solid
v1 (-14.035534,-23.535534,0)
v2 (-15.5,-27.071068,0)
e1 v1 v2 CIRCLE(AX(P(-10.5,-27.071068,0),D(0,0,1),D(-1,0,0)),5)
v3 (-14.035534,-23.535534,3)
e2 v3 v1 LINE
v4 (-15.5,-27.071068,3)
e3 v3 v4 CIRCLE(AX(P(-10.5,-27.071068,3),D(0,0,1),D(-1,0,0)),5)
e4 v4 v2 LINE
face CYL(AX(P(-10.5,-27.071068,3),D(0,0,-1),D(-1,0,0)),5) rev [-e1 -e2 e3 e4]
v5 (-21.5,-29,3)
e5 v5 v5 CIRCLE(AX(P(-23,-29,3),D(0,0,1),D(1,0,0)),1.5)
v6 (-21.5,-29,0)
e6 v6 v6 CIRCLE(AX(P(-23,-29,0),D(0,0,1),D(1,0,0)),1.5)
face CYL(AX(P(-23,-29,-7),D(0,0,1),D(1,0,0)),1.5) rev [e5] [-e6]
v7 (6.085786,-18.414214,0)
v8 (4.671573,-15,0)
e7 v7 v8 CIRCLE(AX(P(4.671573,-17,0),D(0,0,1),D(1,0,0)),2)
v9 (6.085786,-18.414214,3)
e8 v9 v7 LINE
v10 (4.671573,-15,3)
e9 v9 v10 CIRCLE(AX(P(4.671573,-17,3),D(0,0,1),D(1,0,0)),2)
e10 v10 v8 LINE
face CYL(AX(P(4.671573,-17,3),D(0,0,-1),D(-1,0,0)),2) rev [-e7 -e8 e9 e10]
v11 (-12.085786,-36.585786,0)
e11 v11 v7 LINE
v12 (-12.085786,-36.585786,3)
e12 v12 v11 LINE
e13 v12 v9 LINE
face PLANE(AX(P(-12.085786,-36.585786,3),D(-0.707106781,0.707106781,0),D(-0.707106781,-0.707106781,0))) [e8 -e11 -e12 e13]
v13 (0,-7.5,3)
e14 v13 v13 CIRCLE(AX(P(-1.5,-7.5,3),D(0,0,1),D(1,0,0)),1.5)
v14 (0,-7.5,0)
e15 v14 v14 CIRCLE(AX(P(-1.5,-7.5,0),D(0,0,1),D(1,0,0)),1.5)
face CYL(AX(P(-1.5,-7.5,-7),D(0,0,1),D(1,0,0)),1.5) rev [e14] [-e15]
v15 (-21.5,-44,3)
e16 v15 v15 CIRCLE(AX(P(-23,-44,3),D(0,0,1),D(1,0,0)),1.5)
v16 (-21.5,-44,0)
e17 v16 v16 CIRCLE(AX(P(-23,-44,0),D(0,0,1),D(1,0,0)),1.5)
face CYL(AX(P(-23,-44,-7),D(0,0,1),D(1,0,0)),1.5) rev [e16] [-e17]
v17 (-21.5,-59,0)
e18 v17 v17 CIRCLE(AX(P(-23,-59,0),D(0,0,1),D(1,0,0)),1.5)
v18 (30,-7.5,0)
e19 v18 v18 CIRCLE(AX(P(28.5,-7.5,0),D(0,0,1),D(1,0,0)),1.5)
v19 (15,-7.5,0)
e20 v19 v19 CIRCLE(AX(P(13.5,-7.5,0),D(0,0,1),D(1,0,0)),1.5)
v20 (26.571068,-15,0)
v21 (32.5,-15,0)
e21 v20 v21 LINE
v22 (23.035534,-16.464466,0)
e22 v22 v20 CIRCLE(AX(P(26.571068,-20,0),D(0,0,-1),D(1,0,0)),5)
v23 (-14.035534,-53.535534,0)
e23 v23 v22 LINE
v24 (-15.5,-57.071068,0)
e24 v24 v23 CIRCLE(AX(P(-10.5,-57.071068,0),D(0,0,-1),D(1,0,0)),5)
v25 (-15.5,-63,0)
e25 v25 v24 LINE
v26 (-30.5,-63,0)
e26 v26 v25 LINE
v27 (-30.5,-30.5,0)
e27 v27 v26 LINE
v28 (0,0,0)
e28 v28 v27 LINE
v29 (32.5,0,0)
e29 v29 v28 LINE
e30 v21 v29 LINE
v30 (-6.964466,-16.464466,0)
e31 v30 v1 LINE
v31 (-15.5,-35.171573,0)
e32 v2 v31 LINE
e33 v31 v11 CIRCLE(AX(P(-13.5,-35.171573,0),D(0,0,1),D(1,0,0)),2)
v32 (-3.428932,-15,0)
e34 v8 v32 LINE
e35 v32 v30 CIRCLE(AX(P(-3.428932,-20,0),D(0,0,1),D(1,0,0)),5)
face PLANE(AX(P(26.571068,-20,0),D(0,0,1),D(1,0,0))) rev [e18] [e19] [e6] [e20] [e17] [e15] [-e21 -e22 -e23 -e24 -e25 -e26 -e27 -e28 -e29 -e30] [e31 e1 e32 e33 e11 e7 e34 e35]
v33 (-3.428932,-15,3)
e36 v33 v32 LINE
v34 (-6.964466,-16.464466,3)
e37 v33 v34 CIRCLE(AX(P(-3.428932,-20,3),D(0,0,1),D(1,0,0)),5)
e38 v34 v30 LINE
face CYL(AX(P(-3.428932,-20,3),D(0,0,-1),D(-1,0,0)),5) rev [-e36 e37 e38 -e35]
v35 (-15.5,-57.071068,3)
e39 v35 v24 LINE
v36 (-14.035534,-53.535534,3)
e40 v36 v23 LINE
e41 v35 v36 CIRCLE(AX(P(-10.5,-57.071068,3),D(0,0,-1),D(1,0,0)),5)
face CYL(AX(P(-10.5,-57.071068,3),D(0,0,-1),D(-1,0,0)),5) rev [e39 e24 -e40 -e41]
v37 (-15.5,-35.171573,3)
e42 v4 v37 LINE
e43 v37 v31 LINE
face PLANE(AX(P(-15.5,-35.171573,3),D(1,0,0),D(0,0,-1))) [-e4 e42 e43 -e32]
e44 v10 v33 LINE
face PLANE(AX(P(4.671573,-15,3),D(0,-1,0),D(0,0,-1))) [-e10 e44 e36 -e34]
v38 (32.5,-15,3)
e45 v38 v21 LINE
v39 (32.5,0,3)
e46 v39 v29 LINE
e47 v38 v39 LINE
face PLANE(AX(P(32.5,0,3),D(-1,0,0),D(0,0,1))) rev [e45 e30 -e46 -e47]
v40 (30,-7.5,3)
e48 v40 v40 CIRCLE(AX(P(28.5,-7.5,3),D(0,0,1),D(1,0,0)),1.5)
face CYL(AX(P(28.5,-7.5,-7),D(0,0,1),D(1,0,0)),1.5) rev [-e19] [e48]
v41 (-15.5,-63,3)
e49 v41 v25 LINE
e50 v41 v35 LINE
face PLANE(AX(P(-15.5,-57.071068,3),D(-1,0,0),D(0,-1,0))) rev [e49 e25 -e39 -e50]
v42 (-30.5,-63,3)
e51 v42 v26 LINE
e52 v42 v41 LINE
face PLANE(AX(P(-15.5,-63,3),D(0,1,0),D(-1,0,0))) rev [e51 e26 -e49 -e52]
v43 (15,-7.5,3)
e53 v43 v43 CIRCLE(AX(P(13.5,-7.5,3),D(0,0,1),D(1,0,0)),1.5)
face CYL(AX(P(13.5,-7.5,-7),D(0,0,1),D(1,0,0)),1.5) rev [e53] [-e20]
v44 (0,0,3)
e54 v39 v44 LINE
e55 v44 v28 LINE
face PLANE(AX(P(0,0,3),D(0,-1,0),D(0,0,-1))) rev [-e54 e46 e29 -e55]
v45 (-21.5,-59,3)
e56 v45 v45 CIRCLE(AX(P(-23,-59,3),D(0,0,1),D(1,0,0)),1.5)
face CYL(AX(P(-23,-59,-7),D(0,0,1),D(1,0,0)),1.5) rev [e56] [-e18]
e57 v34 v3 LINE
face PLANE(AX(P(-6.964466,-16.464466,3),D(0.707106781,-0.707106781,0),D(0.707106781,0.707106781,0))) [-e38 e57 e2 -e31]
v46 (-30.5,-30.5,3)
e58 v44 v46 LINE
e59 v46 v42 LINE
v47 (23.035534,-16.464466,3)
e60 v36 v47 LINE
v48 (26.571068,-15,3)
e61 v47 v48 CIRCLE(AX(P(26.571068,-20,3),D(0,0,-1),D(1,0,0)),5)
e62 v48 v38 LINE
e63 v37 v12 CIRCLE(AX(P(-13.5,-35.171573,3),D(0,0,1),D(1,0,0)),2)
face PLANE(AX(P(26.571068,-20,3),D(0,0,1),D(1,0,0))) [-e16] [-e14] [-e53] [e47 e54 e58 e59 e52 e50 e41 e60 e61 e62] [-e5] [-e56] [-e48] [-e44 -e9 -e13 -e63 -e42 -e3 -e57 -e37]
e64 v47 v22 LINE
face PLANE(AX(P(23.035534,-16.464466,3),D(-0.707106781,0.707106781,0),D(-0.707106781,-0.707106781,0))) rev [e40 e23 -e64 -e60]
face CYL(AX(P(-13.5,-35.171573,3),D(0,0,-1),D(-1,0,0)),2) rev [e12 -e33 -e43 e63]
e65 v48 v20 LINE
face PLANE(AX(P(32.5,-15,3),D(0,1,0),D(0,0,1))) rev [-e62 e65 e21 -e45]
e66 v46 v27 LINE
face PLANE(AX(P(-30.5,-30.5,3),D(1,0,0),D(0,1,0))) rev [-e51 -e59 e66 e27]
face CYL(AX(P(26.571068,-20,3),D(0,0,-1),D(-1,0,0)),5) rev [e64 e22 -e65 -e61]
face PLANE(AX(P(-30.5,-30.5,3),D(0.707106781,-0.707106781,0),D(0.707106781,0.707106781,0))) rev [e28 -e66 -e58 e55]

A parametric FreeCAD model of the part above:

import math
import FreeCAD as App
import Part
import Sketcher

doc = App.newDocument("Part")
body = doc.addObject("PartDesign::Body", "Body")

sketch1 = body.newObject("Sketcher::SketchObject", "Sketch")
sketch1.AttachmentSupport = (doc.getObject("XY_Plane"), [""])
sketch1.MapMode = "FlatFace"
sketch1.addGeometry([
    Part.LineSegment(App.Vector(32.5, -15, 0), App.Vector(32.5, 0, 0)),
    Part.LineSegment(App.Vector(32.5, 0, 0), App.Vector(0, 0, 0)),
    Part.LineSegment(App.Vector(0, 0, 0), App.Vector(-30.5, -30.5, 0)),
    Part.LineSegment(App.Vector(-30.5, -30.5, 0), App.Vector(-30.5, -63, 0)),
    Part.LineSegment(App.Vector(-30.5, -63, 0), App.Vector(-15.5, -63, 0)),
    Part.LineSegment(App.Vector(-15.5, -63, 0), App.Vector(-15.5, -57.071068, 0)),
    Part.ArcOfCircle(Part.Circle(App.Vector(-10.5, -57.071068, 0), App.Vector(0, 0, 1), 5), math.radians(135), math.radians(180)),
    Part.LineSegment(App.Vector(-14.035534, -53.535534, 0), App.Vector(23.035534, -16.464466, 0)),
    Part.ArcOfCircle(Part.Circle(App.Vector(26.571068, -20, 0), App.Vector(0, 0, 1), 5), math.radians(90), math.radians(135)),
    Part.LineSegment(App.Vector(26.571068, -15, 0), App.Vector(32.5, -15, 0)),
    Part.ArcOfCircle(Part.Circle(App.Vector(-13.5, -35.171573, 0), App.Vector(0, 0, 1), 2), math.radians(180), math.radians(315)),
    Part.LineSegment(App.Vector(-15.5, -35.171573, 0), App.Vector(-15.5, -27.071068, 0)),
    Part.ArcOfCircle(Part.Circle(App.Vector(-10.5, -27.071068, 0), App.Vector(0, 0, 1), 5), math.radians(135), math.radians(180)),
    Part.LineSegment(App.Vector(-14.035534, -23.535534, 0), App.Vector(-6.964466, -16.464466, 0)),
    Part.ArcOfCircle(Part.Circle(App.Vector(-3.428932, -20, 0), App.Vector(0, 0, 1), 5), math.radians(90), math.radians(135)),
    Part.LineSegment(App.Vector(-3.428932, -15, 0), App.Vector(4.671573, -15, 0)),
    Part.ArcOfCircle(Part.Circle(App.Vector(4.671573, -17, 0), App.Vector(0, 0, 1), 2), math.radians(-45), math.radians(90)),
    Part.LineSegment(App.Vector(6.085786, -18.414214, 0), App.Vector(-12.085786, -36.585786, 0)),
], False)
sketch1.addConstraint([
    Sketcher.Constraint("Coincident", 0, 2, 1, 1),
    Sketcher.Constraint("Coincident", 1, 2, 2, 1),
    Sketcher.Constraint("Coincident", 2, 2, 3, 1),
    Sketcher.Constraint("Coincident", 3, 2, 4, 1),
    Sketcher.Constraint("Coincident", 4, 2, 5, 1),
    Sketcher.Constraint("Tangent", 5, 2, 6, 2),
    Sketcher.Constraint("Tangent", 6, 1, 7, 1),
    Sketcher.Constraint("Tangent", 7, 2, 8, 2),
    Sketcher.Constraint("Tangent", 8, 1, 9, 1),
    Sketcher.Constraint("Coincident", 9, 2, 0, 1),
    Sketcher.Constraint("Tangent", 10, 1, 11, 1),
    Sketcher.Constraint("Tangent", 11, 2, 12, 2),
    Sketcher.Constraint("Tangent", 12, 1, 13, 1),
    Sketcher.Constraint("Tangent", 13, 2, 14, 2),
    Sketcher.Constraint("Tangent", 14, 1, 15, 1),
    Sketcher.Constraint("Tangent", 15, 2, 16, 2),
    Sketcher.Constraint("Tangent", 16, 1, 17, 1),
    Sketcher.Constraint("Tangent", 17, 2, 10, 2),
    Sketcher.Constraint("Vertical", 0),
    Sketcher.Constraint("Horizontal", 1),
    Sketcher.Constraint("Vertical", 3),
    Sketcher.Constraint("Horizontal", 4),
    Sketcher.Constraint("Vertical", 5),
    Sketcher.Constraint("Horizontal", 9),
    Sketcher.Constraint("Vertical", 11),
    Sketcher.Constraint("Horizontal", 15),
    Sketcher.Constraint("Coincident", 1, 2, -1, 1),
    Sketcher.Constraint("Equal", 6, 8),
    Sketcher.Constraint("Equal", 8, 12),
    Sketcher.Constraint("Equal", 12, 14),
    Sketcher.Constraint("Equal", 10, 16),
    Sketcher.Constraint("Parallel", 2, 7),
    Sketcher.Constraint("Parallel", 7, 13),
    Sketcher.Constraint("Parallel", 13, 17),
    Sketcher.Constraint("Horizontal", 8, 3, 14, 3),
    Sketcher.Constraint("Vertical", 6, 3, 12, 3),
    Sketcher.Constraint("Equal", 4, 0),
    Sketcher.Constraint("Equal", 1, 3),
    Sketcher.Constraint("Equal", 9, 5),
    Sketcher.Constraint("Radius", 6, 5.0),
    Sketcher.Constraint("Radius", 10, 2.0),
    Sketcher.Constraint("DistanceX", 4, 1, 4, 2, 15.0),
    Sketcher.Constraint("Distance", 13, 10.0),
    Sketcher.Constraint("DistanceX", 1, 2, 1, 1, 32.5),
    Sketcher.Constraint("DistanceY", 3, 2, -1, 1, 63.0),
    Sketcher.Constraint("DistanceY", 6, 3, 12, 3, 30.0),
    Sketcher.Constraint("DistanceX", 15, 1, 15, 2, 8.100505),
])
pad1 = body.newObject("PartDesign::Pad", "Pad")
pad1.Profile = sketch1
pad1.Length = 3

sketch2 = body.newObject("Sketcher::SketchObject", "Sketch001")
sketch2.AttachmentSupport = (doc.getObject("XY_Plane"), [""])
sketch2.MapMode = "FlatFace"
sketch2.AttachmentOffset = App.Placement(App.Vector(0, 0, 3), App.Rotation())
sketch2.addGeometry([
    Part.Circle(App.Vector(28.5, -7.5, 0), App.Vector(0, 0, 1), 1.5),
    Part.Circle(App.Vector(13.5, -7.5, 0), App.Vector(0, 0, 1), 1.5),
    Part.Circle(App.Vector(-1.5, -7.5, 0), App.Vector(0, 0, 1), 1.5),
    Part.Circle(App.Vector(-23, -29, 0), App.Vector(0, 0, 1), 1.5),
    Part.Circle(App.Vector(-23, -44, 0), App.Vector(0, 0, 1), 1.5),
    Part.Circle(App.Vector(-23, -59, 0), App.Vector(0, 0, 1), 1.5),
], False)
sketch2.addConstraint([
    Sketcher.Constraint("Equal", 0, 1),
    Sketcher.Constraint("Equal", 1, 2),
    Sketcher.Constraint("Equal", 2, 3),
    Sketcher.Constraint("Equal", 3, 4),
    Sketcher.Constraint("Equal", 4, 5),
    Sketcher.Constraint("Horizontal", 0, 3, 1, 3),
    Sketcher.Constraint("Horizontal", 1, 3, 2, 3),
    Sketcher.Constraint("Vertical", 3, 3, 4, 3),
    Sketcher.Constraint("Vertical", 4, 3, 5, 3),
    Sketcher.Constraint("Diameter", 0, 3.0),
    Sketcher.Constraint("DistanceX", 3, 3, -1, 1, 23.0),
    Sketcher.Constraint("DistanceY", 3, 3, -1, 1, 29.0),
    Sketcher.Constraint("DistanceY", 4, 3, -1, 1, 44.0),
    Sketcher.Constraint("DistanceY", 5, 3, -1, 1, 59.0),
    Sketcher.Constraint("DistanceX", 1, 3, 0, 3, 15.0),
    Sketcher.Constraint("DistanceX", 2, 3, 1, 3, 15.0),
    Sketcher.Constraint("DistanceX", -1, 1, 0, 3, 28.5),
    Sketcher.Constraint("DistanceY", 0, 3, -1, 1, 7.5),
])
pocket1 = body.newObject("PartDesign::Pocket", "Pocket")
pocket1.Profile = sketch2
pocket1.Length = 10

doc.recompute()
